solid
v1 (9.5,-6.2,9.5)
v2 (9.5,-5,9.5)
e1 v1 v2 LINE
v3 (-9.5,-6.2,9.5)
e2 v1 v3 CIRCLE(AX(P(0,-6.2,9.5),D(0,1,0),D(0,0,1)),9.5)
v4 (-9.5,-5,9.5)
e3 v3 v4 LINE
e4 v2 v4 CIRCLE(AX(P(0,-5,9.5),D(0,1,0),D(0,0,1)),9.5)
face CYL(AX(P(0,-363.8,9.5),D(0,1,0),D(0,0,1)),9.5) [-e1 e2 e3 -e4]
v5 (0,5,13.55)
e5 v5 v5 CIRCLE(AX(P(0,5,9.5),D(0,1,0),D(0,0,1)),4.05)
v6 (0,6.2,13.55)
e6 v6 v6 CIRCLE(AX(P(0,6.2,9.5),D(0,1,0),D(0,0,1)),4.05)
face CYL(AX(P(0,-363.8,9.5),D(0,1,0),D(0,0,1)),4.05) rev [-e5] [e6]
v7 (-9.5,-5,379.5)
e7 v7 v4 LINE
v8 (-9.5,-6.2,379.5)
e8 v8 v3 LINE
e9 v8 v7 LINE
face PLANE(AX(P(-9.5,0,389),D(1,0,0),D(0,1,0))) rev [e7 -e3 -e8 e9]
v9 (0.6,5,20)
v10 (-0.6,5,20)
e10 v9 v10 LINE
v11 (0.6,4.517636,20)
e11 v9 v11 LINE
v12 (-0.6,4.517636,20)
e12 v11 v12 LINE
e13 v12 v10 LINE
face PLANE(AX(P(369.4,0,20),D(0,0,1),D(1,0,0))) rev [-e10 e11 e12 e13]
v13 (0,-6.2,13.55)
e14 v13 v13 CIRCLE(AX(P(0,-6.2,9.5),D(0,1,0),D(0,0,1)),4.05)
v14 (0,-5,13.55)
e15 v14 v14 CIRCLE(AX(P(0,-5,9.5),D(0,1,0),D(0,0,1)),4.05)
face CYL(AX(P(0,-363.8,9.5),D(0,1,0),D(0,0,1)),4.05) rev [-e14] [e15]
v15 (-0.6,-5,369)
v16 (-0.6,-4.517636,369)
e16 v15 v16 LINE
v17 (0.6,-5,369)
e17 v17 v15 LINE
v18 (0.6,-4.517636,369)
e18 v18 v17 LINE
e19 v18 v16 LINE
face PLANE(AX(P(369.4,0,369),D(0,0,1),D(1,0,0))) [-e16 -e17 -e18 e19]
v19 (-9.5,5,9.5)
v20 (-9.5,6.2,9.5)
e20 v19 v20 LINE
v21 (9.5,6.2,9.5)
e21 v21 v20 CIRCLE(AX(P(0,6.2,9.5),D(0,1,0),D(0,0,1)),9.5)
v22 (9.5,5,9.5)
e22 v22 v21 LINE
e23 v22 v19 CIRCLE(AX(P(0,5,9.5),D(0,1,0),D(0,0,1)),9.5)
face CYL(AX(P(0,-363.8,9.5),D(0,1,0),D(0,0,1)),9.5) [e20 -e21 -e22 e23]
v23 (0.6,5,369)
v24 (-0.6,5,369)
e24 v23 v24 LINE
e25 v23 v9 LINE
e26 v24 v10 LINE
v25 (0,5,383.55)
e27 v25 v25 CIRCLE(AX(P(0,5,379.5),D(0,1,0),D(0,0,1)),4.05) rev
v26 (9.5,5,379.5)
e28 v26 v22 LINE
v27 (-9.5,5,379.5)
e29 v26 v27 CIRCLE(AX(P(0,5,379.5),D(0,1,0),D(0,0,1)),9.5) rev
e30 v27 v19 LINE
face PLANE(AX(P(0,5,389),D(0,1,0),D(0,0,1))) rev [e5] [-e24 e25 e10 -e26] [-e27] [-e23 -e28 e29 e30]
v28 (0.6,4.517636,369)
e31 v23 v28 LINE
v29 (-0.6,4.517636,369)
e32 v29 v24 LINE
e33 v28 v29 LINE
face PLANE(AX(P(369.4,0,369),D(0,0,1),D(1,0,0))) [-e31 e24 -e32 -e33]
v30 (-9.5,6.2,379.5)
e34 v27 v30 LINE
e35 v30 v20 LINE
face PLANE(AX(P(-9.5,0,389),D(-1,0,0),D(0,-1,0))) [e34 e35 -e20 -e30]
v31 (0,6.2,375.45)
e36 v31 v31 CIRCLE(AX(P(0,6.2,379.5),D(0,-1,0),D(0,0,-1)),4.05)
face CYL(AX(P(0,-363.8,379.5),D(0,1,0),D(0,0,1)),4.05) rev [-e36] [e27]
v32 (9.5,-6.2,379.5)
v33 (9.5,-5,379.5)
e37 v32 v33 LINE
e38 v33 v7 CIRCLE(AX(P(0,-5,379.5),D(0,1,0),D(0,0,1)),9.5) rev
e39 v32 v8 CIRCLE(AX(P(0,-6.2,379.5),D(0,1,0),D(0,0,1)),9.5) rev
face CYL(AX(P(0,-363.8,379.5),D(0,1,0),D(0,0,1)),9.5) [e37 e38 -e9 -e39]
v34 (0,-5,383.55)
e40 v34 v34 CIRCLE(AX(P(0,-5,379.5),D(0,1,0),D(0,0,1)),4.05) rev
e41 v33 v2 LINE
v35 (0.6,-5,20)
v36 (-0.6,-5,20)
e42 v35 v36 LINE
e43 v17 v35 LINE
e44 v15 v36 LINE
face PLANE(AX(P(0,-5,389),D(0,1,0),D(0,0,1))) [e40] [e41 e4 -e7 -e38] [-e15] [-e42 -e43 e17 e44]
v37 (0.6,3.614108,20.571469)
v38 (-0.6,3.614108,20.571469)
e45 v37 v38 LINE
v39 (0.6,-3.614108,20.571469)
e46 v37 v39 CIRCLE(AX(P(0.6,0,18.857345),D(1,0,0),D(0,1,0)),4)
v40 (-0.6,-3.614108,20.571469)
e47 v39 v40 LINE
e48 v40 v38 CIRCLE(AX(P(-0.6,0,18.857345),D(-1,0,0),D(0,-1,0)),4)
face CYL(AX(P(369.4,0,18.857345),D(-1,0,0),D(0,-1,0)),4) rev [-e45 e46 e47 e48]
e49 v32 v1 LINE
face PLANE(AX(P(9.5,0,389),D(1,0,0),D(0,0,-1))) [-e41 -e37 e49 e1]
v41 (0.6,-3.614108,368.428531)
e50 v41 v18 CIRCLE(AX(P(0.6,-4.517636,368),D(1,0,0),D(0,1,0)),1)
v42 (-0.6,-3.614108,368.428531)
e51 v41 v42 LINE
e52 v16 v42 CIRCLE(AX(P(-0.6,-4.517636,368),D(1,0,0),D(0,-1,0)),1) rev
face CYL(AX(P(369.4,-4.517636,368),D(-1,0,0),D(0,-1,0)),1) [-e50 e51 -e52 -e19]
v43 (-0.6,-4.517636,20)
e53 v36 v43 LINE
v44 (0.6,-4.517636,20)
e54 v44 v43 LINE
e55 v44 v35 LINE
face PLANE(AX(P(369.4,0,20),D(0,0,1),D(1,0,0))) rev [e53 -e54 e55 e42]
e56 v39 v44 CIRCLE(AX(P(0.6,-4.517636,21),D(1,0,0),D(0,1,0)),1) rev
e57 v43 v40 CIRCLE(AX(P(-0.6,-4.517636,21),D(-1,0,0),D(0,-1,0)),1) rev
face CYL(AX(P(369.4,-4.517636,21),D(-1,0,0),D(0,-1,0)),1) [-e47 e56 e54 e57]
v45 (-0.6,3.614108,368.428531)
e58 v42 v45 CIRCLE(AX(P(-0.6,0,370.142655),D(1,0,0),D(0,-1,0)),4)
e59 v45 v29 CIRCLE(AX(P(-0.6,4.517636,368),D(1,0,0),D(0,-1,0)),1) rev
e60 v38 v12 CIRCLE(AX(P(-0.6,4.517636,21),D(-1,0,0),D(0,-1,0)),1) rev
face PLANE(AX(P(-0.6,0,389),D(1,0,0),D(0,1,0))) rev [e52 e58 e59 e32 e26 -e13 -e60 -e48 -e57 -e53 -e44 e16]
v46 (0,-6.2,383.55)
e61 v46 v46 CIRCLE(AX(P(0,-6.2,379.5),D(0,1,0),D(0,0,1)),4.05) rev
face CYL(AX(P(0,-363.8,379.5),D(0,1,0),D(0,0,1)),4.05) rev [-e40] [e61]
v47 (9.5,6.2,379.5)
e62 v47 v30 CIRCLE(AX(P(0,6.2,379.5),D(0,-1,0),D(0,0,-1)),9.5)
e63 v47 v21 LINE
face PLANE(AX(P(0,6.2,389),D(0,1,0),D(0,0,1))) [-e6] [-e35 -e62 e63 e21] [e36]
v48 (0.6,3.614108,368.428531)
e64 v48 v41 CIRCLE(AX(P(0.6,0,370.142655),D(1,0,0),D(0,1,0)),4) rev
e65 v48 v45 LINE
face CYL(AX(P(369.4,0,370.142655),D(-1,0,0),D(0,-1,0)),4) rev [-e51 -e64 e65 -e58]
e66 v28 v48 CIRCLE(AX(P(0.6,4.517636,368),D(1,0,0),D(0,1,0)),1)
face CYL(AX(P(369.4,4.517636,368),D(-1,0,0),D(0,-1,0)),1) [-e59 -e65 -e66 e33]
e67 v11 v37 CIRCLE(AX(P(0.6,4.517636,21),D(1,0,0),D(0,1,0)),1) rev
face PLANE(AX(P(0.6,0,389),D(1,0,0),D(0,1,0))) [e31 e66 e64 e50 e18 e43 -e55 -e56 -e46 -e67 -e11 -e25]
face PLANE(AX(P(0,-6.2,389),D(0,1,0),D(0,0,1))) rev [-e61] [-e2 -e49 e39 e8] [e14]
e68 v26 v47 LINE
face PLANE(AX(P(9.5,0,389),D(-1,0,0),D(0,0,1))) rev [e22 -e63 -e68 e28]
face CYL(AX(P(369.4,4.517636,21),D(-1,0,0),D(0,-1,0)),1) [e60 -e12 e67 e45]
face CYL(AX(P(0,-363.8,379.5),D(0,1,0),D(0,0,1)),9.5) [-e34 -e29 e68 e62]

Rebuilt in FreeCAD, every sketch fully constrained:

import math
import FreeCAD as App
import Part
import Sketcher
from FreeCAD import Vector

doc = App.newDocument("Part")
params = doc.addObject("Spreadsheet::Sheet", "Params")
for row, (alias, value) in enumerate([
    ("sketch1_width", "19 mm"),
    ("sketch1_height", "10 mm"),
    ("sketch1_width2", "8.9 mm"),
    ("sketch1_height2", "1.2 mm"),
    ("pad1_length", "389 mm"),
    ("sketch2_diameter", "8.1 mm"),
    ("sketch2_radius", "9.5 mm"),
    ("sketch2_radius2", "14.5 mm"),
    ("pocket1_length", "370 mm"),
    ("sketch3_radius", "1 mm"),
    ("sketch3_radius2", "4 mm"),
    ("sketch3_width", "10 mm"),
    ("sketch3_height", "21 mm"),
    ("pocket2_length", "370 mm"),
], start=1):
    params.set(f"A{row}", alias)
    params.set(f"B{row}", "=" + value)
    params.setAlias(f"B{row}", alias)

body = doc.addObject("PartDesign::Body", "Body")

sketch1 = body.newObject("Sketcher::SketchObject", "Sketch")
sketch1.AttachmentSupport = (doc.getObject("XY_Plane"), [""])
sketch1.MapMode = "FlatFace"
sketch1.addGeometry(Part.LineSegment(Vector(-0.6, 5, 0), Vector(-0.6, -5, 0)), False)
sketch1.addGeometry(Part.LineSegment(Vector(-0.6, -5, 0), Vector(-9.5, -5, 0)), False)
sketch1.addGeometry(Part.LineSegment(Vector(-9.5, -5, 0), Vector(-9.5, -6.2, 0)), False)
sketch1.addGeometry(Part.LineSegment(Vector(-9.5, -6.2, 0), Vector(9.5, -6.2, 0)), False)
sketch1.addGeometry(Part.LineSegment(Vector(9.5, -6.2, 0), Vector(9.5, -5, 0)), False)
sketch1.addGeometry(Part.LineSegment(Vector(9.5, -5, 0), Vector(0.6, -5, 0)), False)
sketch1.addGeometry(Part.LineSegment(Vector(0.6, -5, 0), Vector(0.6, 5, 0)), False)
sketch1.addGeometry(Part.LineSegment(Vector(0.6, 5, 0), Vector(9.5, 5, 0)), False)
sketch1.addGeometry(Part.LineSegment(Vector(9.5, 5, 0), Vector(9.5, 6.2, 0)), False)
sketch1.addGeometry(Part.LineSegment(Vector(9.5, 6.2, 0), Vector(-9.5, 6.2, 0)), False)
sketch1.addGeometry(Part.LineSegment(Vector(-9.5, 6.2, 0), Vector(-9.5, 5, 0)), False)
sketch1.addGeometry(Part.LineSegment(Vector(-9.5, 5, 0), Vector(-0.6, 5, 0)), False)
sketch1.addConstraint(Sketcher.Constraint("Coincident", 0, 2, 1, 1))
sketch1.addConstraint(Sketcher.Constraint("Coincident", 1, 2, 2, 1))
sketch1.addConstraint(Sketcher.Constraint("Coincident", 2, 2, 3, 1))
sketch1.addConstraint(Sketcher.Constraint("Coincident", 3, 2, 4, 1))
sketch1.addConstraint(Sketcher.Constraint("Coincident", 4, 2, 5, 1))
sketch1.addConstraint(Sketcher.Constraint("Coincident", 5, 2, 6, 1))
sketch1.addConstraint(Sketcher.Constraint("Coincident", 6, 2, 7, 1))
sketch1.addConstraint(Sketcher.Constraint("Coincident", 7, 2, 8, 1))
sketch1.addConstraint(Sketcher.Constraint("Coincident", 8, 2, 9, 1))
sketch1.addConstraint(Sketcher.Constraint("Coincident", 9, 2, 10, 1))
sketch1.addConstraint(Sketcher.Constraint("Coincident", 10, 2, 11, 1))
sketch1.addConstraint(Sketcher.Constraint("Coincident", 11, 2, 0, 1))
sketch1.addConstraint(Sketcher.Constraint("Vertical", 0))
sketch1.addConstraint(Sketcher.Constraint("Horizontal", 1))
sketch1.addConstraint(Sketcher.Constraint("Vertical", 2))
sketch1.addConstraint(Sketcher.Constraint("Horizontal", 3))
sketch1.addConstraint(Sketcher.Constraint("Vertical", 4))
sketch1.addConstraint(Sketcher.Constraint("Horizontal", 5))
sketch1.addConstraint(Sketcher.Constraint("Vertical", 6))
sketch1.addConstraint(Sketcher.Constraint("Horizontal", 7))
sketch1.addConstraint(Sketcher.Constraint("Vertical", 8))
sketch1.addConstraint(Sketcher.Constraint("Horizontal", 9))
sketch1.addConstraint(Sketcher.Constraint("Vertical", 10))
sketch1.addConstraint(Sketcher.Constraint("Horizontal", 11))
sketch1.addConstraint(Sketcher.Constraint("Symmetric", 0, 2, 6, 2, -1, 1))
sketch1.addConstraint(Sketcher.Constraint("Symmetric", 2, 2, 8, 2, -1, 1))
sketch1.addConstraint(Sketcher.Constraint("Symmetric", 4, 2, 10, 2, -1, 1))
sketch1.addConstraint(Sketcher.Constraint("Symmetric", 1, 2, 4, 2, -2))
sketch1.addConstraint(Sketcher.Constraint("DistanceX", 3, 1, 3, 2, 19.0))
sketch1.addConstraint(Sketcher.Constraint("DistanceY", 0, 2, 0, 1, 10.0))
sketch1.addConstraint(Sketcher.Constraint("DistanceX", 1, 2, 1, 1, 8.9))
sketch1.addConstraint(Sketcher.Constraint("DistanceY", 2, 2, 2, 1, 1.2))
sketch1.setExpression("Constraints[28]", "Params.sketch1_width")
sketch1.setExpression("Constraints[29]", "Params.sketch1_height")
sketch1.setExpression("Constraints[30]", "Params.sketch1_width2")
sketch1.setExpression("Constraints[31]", "Params.sketch1_height2")
pad1 = body.newObject("PartDesign::Pad", "Pad")
pad1.Profile = sketch1
pad1.setExpression("Length", "Params.pad1_length")

sketch2 = body.newObject("Sketcher::SketchObject", "Sketch001")
sketch2.AttachmentSupport = (doc.getObject("XZ_Plane"), [""])
sketch2.MapMode = "FlatFace"
sketch2.AttachmentOffset = App.Placement(Vector(0, 0, -6.2), App.Rotation())
sketch2.addGeometry(Part.ArcOfCircle(Part.Circle(Vector(0, 9.5, 0), Vector(0, 0, 1), 9.5), math.radians(-180), math.radians(-90)), False)
sketch2.addGeometry(Part.ArcOfCircle(Part.Circle(Vector(0, 9.5, 0), Vector(0, 0, 1), 9.5), math.radians(-90), math.radians(0)), False)
sketch2.addGeometry(Part.LineSegment(Vector(9.5, 9.5, 0), Vector(14.5, 9.5, 0)), False)
sketch2.addGeometry(Part.ArcOfCircle(Part.Circle(Vector(0, 9.5, 0), Vector(0, 0, 1), 14.5), math.radians(180), math.radians(360)), False)
sketch2.addGeometry(Part.LineSegment(Vector(-14.5, 9.5, 0), Vector(-9.5, 9.5, 0)), False)
sketch2.addGeometry(Part.Circle(Vector(0, 9.5, 0), Vector(0, 0, 1), 4), False)
sketch2.addConstraint(Sketcher.Constraint("Tangent", 0, 2, 1, 1))
sketch2.addConstraint(Sketcher.Constraint("Coincident", 1, 2, 2, 1))
sketch2.addConstraint(Sketcher.Constraint("Coincident", 2, 2, 3, 2))
sketch2.addConstraint(Sketcher.Constraint("Coincident", 3, 1, 4, 1))
sketch2.addConstraint(Sketcher.Constraint("Coincident", 4, 2, 0, 1))
sketch2.addConstraint(Sketcher.Constraint("Horizontal", 2))
sketch2.addConstraint(Sketcher.Constraint("Horizontal", 4))
sketch2.addConstraint(Sketcher.Constraint("Coincident", 0, 2, -1, 1))
sketch2.addConstraint(Sketcher.Constraint("Coincident", 3, 3, 0, 3))
sketch2.addConstraint(Sketcher.Constraint("Coincident", 5, 3, 0, 3))
sketch2.addConstraint(Sketcher.Constraint("Equal", 0, 1))
sketch2.addConstraint(Sketcher.Constraint("Symmetric", 2, 2, 3, 1, -2))
sketch2.addConstraint(Sketcher.Constraint("Horizontal", 5, 3, 1, 2))
sketch2.addConstraint(Sketcher.Constraint("Diameter", 5, 8.1))
sketch2.addConstraint(Sketcher.Constraint("Radius", 0, 9.5))
sketch2.addConstraint(Sketcher.Constraint("Radius", 3, 14.5))
sketch2.setExpression("Constraints[13]", "Params.sketch2_diameter")
sketch2.setExpression("Constraints[14]", "Params.sketch2_radius")
sketch2.setExpression("Constraints[15]", "Params.sketch2_radius2")
pocket1 = body.newObject("PartDesign::Pocket", "Pocket")
pocket1.Profile = sketch2
pocket1.setExpression("Length", "Params.pocket1_length")
pocket1.Reversed = True
doc.recompute()

datumplane = body.newObject("PartDesign::Plane", "DatumPlane")
datumplane.AttachmentSupport = (doc.getObject("XY_Plane"), [""])
datumplane.MapMode = "FlatFace"
datumplane.AttachmentOffset = App.Placement(Vector(0, 0, 194.5), App.Rotation())
mirrored = body.newObject("PartDesign::Mirrored", "Mirrored")
mirrored.Originals = [pocket1]
mirrored.MirrorPlane = (datumplane, [""])
body.Tip = mirrored

sketch3 = body.newObject("Sketcher::SketchObject", "Sketch002")
sketch3.AttachmentSupport = (doc.getObject("YZ_Plane"), [""])
sketch3.MapMode = "FlatFace"
sketch3.AttachmentOffset = App.Placement(Vector(0, 0, -0.6), App.Rotation())
sketch3.addGeometry(Part.LineSegment(Vector(-5, -1, 0), Vector(-5, 20, 0)), False)
sketch3.addGeometry(Part.LineSegment(Vector(-5, 20, 0), Vector(-4.52, 20, 0)), False)
sketch3.addGeometry(Part.ArcOfCircle(Part.Circle(Vector(-4.52, 21, 0), Vector(0, 0, 1), 1), math.radians(-90), math.radians(-25)), False)
sketch3.addGeometry(Part.ArcOfCircle(Part.Circle(Vector(0, 18.86, 0), Vector(0, 0, 1), 4), math.radians(25), math.radians(155)), False)
sketch3.addGeometry(Part.ArcOfCircle(Part.Circle(Vector(4.52, 21, 0), Vector(0, 0, 1), 1), math.radians(-155), math.radians(-90)), False)
sketch3.addGeometry(Part.LineSegment(Vector(4.52, 20, 0), Vector(5, 20, 0)), False)
sketch3.addGeometry(Part.LineSegment(Vector(5, 20, 0), Vector(5, -1, 0)), False)
sketch3.addGeometry(Part.LineSegment(Vector(5, -1, 0), Vector(-5, -1, 0)), False)
sketch3.addConstraint(Sketcher.Constraint("Coincident", 0, 2, 1, 1))
sketch3.addConstraint(Sketcher.Constraint("Tangent", 1, 2, 2, 1))
sketch3.addConstraint(Sketcher.Constraint("Tangent", 2, 2, 3, 2))
sketch3.addConstraint(Sketcher.Constraint("Tangent", 3, 1, 4, 1))
sketch3.addConstraint(Sketcher.Constraint("Tangent", 4, 2, 5, 1))
sketch3.addConstraint(Sketcher.Constraint("Coincident", 5, 2, 6, 1))
sketch3.addConstraint(Sketcher.Constraint("Coincident", 6, 2, 7, 1))
sketch3.addConstraint(Sketcher.Constraint("Coincident", 7, 2, 0, 1))
sketch3.addConstraint(Sketcher.Constraint("Vertical", 0))
sketch3.addConstraint(Sketcher.Constraint("Horizontal", 1))
sketch3.addConstraint(Sketcher.Constraint("Horizontal", 5))
sketch3.addConstraint(Sketcher.Constraint("Vertical", 6))
sketch3.addConstraint(Sketcher.Constraint("Horizontal", 7))
sketch3.addConstraint(Sketcher.Constraint("Equal", 2, 4))
sketch3.addConstraint(Sketcher.Constraint("Symmetric", 2, 3, 4, 3, -2))
sketch3.addConstraint(Sketcher.Constraint("Equal", 1, 5))
sketch3.addConstraint(Sketcher.Constraint("Radius", 2, 1.0))
sketch3.addConstraint(Sketcher.Constraint("Radius", 3, 4.0))
sketch3.addConstraint(Sketcher.Constraint("DistanceX", 7, 2, 7, 1, 10.0))
sketch3.addConstraint(Sketcher.Constraint("DistanceY", 0, 1, 0, 2, 21.0))
sketch3.addConstraint(Sketcher.Constraint("DistanceY", -1, 1, 2, 3, 21.0))
sketch3.addConstraint(Sketcher.Constraint("DistanceX", 1, 1, 1, 2, 0.482364))
sketch3.setExpression("Constraints[16]", "Params.sketch3_radius")
sketch3.setExpression("Constraints[17]", "Params.sketch3_radius2")
sketch3.setExpression("Constraints[18]", "Params.sketch3_width")
sketch3.setExpression("Constraints[19]", "Params.sketch3_height")
pocket2 = body.newObject("PartDesign::Pocket", "Pocket001")
pocket2.Profile = sketch3
pocket2.setExpression("Length", "Params.pocket2_length")
pocket2.Reversed = True
doc.recompute()

datumplane2 = body.newObject("PartDesign::Plane", "DatumPlane001")
datumplane2.AttachmentSupport = (doc.getObject("XY_Plane"), [""])
datumplane2.MapMode = "FlatFace"
datumplane2.AttachmentOffset = App.Placement(Vector(0, 0, 194.5), App.Rotation())
mirrored2 = body.newObject("PartDesign::Mirrored", "Mirrored001")
mirrored2.Originals = [pocket2]
mirrored2.MirrorPlane = (datumplane2, [""])
body.Tip = mirrored2

doc.recompute()
